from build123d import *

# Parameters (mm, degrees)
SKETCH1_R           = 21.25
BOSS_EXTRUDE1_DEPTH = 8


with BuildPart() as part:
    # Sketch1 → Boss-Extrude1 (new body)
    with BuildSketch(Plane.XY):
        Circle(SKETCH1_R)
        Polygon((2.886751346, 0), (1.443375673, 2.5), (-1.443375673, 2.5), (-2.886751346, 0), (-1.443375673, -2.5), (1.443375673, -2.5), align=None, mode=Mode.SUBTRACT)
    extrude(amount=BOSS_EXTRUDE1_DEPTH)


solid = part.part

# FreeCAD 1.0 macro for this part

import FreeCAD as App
import Part
import Sketcher
Q = App.Units.Quantity

doc = App.newDocument("Part")
body = doc.addObject("PartDesign::Body", "Body")

sketch1 = body.newObject("Sketcher::SketchObject", "Sketch")
sketch1.AttachmentSupport = (doc.getObject("XY_Plane"), [""])
sketch1.MapMode = "FlatFace"
sketch1.addGeometry([
    Part.Circle(App.Vector(0, 0, 0), App.Vector(0, 0, 1), 21.2),
    Part.LineSegment(App.Vector(1.4, 2.5, 0), App.Vector(2.9, 0, 0)),
    Part.LineSegment(App.Vector(2.9, 0, 0), App.Vector(1.4, -2.5, 0)),
    Part.LineSegment(App.Vector(1.4, -2.5, 0), App.Vector(-1.4, -2.5, 0)),
    Part.LineSegment(App.Vector(-1.4, -2.5, 0), App.Vector(-2.9, 0, 0)),
    Part.LineSegment(App.Vector(-2.9, 0, 0), App.Vector(-1.4, 2.5, 0)),
    Part.LineSegment(App.Vector(-1.4, 2.5, 0), App.Vector(1.4, 2.5, 0)),
], False)
sketch1.addConstraint([
    Sketcher.Constraint("Coincident", 1, 2, 2, 1),
    Sketcher.Constraint("Coincident", 2, 2, 3, 1),
    Sketcher.Constraint("Coincident", 3, 2, 4, 1),
    Sketcher.Constraint("Coincident", 4, 2, 5, 1),
    Sketcher.Constraint("Coincident", 5, 2, 6, 1),
    Sketcher.Constraint("Coincident", 6, 2, 1, 1),
    Sketcher.Constraint("Horizontal", 3),
    Sketcher.Constraint("Horizontal", 6),
    Sketcher.Constraint("Coincident", 0, 3, -1, 1),
    Sketcher.Constraint("Symmetric", 1, 2, 4, 2, -1, 1),
    Sketcher.Constraint("Symmetric", 2, 2, 5, 2, -1, 1),
    Sketcher.Constraint("PointOnObject", 1, 2, -1),
    Sketcher.Constraint("Parallel", 1, 4),
    Sketcher.Constraint("Vertical", 3, 2, 5, 2),
    Sketcher.Constraint("Diameter", 0, Q("42.5 mm")),
    Sketcher.Constraint("Angle", 1, Q("-60 deg")),
    Sketcher.Constraint("DistanceY", 3, 2, 5, 2, Q("5 mm")),
    Sketcher.Constraint("DistanceX", 3, 2, 3, 1, Q("2.886751 mm")),
])
pad1 = body.newObject("PartDesign::Pad", "Pad")
pad1.Profile = sketch1
pad1.Length = 8

doc.recompute()
